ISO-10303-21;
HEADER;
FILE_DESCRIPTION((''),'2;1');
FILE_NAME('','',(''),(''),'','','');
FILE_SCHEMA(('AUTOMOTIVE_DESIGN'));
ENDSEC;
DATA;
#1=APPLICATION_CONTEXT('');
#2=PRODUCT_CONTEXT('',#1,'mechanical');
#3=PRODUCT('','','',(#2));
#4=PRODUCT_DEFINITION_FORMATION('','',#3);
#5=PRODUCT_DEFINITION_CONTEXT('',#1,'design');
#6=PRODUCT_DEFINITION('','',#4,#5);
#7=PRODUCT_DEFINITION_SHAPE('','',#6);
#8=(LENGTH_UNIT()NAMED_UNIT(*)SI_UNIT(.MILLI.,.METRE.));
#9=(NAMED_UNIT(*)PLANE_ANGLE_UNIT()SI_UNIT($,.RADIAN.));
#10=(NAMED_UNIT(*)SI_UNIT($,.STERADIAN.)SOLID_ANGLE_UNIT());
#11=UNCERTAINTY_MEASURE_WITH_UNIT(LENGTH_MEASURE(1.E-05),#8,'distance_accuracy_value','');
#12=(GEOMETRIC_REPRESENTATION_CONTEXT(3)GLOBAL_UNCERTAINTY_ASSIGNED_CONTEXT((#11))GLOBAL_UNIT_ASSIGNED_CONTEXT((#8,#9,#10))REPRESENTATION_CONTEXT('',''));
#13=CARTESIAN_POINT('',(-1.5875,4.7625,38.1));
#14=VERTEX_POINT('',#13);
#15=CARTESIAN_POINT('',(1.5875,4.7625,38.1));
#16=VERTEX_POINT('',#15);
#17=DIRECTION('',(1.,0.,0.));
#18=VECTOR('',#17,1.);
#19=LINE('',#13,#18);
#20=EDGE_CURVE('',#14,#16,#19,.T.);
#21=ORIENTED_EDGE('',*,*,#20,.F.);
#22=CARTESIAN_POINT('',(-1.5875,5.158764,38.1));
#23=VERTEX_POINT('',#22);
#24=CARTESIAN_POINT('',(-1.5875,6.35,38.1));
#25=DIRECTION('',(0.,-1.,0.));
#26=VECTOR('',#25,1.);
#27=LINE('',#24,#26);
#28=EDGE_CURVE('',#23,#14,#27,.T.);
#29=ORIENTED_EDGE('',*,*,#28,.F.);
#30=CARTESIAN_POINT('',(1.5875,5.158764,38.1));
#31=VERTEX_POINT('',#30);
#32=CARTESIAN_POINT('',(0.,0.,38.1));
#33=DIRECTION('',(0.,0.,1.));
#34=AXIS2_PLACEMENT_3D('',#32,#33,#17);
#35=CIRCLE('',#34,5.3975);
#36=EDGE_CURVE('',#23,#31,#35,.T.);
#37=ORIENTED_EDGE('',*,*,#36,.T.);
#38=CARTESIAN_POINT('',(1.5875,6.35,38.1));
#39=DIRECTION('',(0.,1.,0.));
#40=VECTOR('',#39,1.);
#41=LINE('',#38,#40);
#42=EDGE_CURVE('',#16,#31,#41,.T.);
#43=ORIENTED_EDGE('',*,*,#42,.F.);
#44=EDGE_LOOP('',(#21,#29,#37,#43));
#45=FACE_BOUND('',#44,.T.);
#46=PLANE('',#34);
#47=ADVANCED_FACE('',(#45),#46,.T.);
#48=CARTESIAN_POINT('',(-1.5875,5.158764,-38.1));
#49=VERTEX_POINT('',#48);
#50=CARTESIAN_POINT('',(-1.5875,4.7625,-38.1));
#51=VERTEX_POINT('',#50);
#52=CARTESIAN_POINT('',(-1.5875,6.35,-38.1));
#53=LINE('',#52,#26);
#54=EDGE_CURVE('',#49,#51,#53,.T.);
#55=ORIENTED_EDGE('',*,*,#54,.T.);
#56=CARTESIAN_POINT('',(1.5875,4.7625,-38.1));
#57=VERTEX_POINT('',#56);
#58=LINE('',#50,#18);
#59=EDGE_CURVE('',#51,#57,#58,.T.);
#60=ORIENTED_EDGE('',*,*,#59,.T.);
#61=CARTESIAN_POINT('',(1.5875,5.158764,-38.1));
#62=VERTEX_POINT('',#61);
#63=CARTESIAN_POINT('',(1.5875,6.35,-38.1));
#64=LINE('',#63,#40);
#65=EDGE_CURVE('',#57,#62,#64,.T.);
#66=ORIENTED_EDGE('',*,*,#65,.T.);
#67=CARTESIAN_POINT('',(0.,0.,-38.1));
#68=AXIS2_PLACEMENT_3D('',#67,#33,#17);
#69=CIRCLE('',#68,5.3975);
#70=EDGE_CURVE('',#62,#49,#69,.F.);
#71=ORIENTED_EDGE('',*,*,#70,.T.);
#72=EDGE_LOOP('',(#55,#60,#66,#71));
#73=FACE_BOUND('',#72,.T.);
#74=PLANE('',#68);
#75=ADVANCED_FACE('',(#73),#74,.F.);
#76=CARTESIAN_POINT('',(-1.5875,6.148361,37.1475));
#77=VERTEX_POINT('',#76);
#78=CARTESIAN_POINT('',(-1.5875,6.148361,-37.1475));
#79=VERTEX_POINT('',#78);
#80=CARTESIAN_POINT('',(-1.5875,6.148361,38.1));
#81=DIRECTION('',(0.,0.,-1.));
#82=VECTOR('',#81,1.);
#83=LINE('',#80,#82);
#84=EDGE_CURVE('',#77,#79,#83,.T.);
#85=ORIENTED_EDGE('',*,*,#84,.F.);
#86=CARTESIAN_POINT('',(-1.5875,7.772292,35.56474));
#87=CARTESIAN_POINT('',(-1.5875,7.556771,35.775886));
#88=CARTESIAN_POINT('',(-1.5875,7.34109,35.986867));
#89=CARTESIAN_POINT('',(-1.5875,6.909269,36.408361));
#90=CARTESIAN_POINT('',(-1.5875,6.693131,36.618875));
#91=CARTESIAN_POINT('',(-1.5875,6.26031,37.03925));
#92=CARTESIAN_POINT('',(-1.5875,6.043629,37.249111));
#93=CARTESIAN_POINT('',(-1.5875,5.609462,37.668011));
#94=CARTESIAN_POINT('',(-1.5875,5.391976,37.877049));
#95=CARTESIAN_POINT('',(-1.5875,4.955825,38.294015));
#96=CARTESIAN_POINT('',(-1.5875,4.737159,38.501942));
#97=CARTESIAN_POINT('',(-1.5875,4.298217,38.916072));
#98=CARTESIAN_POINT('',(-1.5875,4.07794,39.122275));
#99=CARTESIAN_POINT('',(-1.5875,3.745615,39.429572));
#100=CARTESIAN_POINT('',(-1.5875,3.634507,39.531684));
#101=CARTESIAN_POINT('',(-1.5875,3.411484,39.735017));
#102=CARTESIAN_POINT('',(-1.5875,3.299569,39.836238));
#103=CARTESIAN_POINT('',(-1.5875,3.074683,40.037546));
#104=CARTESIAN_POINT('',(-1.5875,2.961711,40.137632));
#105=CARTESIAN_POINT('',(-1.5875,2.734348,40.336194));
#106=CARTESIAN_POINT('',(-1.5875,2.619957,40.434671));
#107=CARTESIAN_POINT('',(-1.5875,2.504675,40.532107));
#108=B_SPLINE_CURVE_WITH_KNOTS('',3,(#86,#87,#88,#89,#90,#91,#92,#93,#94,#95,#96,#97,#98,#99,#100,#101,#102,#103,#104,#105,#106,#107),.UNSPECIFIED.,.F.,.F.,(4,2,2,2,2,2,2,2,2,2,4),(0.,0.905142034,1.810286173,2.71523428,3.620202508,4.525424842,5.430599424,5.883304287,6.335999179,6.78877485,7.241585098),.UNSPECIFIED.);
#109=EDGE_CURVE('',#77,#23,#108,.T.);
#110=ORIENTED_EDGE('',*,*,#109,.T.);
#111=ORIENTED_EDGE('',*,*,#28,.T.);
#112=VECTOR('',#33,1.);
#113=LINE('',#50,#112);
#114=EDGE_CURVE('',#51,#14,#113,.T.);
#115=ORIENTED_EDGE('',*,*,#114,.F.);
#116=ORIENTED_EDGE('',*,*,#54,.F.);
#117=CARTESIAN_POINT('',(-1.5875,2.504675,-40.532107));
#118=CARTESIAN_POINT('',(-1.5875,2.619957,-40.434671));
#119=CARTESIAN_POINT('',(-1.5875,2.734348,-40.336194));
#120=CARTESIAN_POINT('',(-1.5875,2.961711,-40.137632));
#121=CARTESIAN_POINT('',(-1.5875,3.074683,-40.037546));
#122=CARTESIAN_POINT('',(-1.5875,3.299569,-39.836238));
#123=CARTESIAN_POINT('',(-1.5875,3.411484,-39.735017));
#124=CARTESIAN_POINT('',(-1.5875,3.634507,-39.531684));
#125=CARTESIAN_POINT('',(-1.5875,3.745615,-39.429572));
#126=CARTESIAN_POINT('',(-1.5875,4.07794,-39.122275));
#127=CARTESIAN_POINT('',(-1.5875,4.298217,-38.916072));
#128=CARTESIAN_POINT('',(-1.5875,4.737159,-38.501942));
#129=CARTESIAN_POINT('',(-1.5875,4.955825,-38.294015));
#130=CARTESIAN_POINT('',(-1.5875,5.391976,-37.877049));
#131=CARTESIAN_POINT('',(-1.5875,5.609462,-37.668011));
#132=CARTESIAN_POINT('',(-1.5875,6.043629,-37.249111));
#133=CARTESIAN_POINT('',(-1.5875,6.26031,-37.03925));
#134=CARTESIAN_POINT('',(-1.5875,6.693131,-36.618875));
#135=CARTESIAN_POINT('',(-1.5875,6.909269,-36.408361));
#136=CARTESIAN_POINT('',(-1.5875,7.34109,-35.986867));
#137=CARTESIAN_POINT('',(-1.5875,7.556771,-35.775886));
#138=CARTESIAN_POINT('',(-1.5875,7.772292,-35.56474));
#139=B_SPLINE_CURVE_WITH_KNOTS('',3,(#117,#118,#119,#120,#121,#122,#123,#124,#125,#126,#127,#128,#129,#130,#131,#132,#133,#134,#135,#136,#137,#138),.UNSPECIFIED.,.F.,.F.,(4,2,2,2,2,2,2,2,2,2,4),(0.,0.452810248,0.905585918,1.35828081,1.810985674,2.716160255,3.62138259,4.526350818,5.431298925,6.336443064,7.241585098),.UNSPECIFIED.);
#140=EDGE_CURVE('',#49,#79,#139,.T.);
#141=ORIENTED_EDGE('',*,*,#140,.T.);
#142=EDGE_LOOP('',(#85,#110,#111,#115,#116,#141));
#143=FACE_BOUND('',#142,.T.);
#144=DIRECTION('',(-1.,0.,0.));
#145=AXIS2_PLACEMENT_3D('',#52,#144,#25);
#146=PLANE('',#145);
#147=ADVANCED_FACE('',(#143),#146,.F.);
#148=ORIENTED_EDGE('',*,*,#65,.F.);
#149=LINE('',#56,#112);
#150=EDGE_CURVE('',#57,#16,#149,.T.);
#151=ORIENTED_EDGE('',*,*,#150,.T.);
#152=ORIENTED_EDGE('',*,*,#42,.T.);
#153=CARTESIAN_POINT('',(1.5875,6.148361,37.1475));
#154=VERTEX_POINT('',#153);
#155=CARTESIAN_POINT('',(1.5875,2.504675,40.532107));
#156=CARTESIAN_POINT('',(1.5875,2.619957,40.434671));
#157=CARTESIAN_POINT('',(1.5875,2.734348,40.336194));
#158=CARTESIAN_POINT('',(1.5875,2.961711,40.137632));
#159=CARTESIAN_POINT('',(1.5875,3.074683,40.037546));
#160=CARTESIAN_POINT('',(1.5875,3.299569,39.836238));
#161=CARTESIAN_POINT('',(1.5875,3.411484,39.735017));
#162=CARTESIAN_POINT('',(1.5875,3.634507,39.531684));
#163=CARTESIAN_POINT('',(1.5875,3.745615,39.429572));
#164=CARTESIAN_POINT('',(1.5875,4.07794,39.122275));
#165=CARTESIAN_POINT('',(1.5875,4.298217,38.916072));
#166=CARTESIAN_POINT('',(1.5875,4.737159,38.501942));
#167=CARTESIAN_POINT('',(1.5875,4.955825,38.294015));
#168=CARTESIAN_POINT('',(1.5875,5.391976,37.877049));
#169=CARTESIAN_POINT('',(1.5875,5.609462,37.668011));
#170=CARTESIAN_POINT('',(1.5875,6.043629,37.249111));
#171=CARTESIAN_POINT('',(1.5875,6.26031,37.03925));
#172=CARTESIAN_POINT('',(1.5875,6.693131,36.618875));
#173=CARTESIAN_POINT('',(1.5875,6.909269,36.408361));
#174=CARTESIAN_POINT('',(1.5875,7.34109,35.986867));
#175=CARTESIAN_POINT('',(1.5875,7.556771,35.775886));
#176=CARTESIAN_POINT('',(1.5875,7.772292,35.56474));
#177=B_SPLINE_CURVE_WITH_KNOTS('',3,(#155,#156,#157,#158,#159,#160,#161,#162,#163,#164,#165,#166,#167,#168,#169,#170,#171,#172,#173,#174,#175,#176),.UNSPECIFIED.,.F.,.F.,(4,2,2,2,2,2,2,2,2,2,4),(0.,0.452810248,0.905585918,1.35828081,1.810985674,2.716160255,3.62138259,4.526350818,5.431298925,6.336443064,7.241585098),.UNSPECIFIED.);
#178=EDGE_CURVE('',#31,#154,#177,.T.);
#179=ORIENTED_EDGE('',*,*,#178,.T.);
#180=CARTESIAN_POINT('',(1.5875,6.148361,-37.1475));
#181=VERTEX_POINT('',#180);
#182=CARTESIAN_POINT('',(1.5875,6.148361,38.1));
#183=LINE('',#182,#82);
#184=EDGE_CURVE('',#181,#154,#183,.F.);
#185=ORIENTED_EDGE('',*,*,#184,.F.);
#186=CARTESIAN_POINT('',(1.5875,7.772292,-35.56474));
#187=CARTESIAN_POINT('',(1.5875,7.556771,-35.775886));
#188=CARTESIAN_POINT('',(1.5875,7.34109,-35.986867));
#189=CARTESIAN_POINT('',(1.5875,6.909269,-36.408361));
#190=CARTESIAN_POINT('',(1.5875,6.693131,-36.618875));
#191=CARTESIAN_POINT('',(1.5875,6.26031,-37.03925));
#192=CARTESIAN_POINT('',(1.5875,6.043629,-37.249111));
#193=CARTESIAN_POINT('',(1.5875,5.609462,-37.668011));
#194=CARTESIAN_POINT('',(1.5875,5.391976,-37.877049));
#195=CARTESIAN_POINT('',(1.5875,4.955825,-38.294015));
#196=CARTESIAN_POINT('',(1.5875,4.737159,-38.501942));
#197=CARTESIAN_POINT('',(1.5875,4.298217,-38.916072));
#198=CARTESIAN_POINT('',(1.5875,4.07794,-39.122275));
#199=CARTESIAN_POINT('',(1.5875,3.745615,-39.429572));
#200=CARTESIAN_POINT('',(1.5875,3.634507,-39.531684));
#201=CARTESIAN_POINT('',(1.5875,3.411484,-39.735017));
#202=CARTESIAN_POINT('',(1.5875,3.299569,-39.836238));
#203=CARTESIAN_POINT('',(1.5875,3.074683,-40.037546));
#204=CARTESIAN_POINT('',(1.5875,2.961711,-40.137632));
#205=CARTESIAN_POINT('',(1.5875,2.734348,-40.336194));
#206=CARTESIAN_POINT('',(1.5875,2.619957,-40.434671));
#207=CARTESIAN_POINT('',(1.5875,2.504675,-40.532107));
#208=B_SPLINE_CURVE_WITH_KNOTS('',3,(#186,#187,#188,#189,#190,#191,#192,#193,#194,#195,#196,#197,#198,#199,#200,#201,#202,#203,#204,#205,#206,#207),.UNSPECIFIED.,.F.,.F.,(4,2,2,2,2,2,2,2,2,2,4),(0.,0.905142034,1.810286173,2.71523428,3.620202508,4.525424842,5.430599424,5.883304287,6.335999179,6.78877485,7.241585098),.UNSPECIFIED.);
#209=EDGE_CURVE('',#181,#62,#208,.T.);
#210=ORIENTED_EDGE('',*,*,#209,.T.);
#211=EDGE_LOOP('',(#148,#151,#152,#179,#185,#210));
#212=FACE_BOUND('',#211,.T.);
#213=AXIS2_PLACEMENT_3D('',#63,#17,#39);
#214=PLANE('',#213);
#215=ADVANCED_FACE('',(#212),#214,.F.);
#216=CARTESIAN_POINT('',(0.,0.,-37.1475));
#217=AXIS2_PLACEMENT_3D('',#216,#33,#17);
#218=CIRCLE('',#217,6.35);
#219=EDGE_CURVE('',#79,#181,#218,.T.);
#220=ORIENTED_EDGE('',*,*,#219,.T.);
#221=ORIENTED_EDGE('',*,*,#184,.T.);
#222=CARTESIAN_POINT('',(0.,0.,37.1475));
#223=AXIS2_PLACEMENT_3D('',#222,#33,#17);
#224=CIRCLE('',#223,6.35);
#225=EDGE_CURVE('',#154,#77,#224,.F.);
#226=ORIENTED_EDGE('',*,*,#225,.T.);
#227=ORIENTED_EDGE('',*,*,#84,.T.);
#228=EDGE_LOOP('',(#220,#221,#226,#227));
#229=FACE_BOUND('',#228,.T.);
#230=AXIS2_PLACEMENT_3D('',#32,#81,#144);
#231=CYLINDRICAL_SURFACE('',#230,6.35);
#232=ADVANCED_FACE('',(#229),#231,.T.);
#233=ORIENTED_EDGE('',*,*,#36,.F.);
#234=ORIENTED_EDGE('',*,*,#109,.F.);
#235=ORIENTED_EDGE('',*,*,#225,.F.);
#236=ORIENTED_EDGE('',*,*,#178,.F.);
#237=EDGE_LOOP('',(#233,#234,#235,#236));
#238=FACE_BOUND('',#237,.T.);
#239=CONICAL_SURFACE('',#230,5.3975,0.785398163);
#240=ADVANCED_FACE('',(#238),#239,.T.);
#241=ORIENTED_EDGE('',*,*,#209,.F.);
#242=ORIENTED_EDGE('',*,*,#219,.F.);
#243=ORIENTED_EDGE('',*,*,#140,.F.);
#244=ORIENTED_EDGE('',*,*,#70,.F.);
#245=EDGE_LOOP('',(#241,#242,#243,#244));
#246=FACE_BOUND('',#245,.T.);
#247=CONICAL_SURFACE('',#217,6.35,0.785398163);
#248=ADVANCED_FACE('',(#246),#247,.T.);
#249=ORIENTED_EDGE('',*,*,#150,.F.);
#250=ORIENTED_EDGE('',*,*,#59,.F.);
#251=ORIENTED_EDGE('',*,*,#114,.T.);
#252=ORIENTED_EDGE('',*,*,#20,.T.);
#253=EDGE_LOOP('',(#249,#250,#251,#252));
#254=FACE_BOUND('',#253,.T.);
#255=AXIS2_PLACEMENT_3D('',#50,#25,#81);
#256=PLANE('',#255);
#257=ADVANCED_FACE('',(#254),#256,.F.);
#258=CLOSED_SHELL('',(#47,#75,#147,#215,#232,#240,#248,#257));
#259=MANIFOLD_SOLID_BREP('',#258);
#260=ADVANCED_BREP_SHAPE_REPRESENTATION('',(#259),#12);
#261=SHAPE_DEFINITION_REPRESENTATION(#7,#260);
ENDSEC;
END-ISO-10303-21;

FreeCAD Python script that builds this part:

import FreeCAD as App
import Part
import Sketcher

V = App.Vector
Q = App.Units.Quantity


def edges_at(feature, points):
    """Names of the edges that pass closest to the given points."""
    edges = feature.Shape.Edges
    near = lambda p: min(range(len(edges)), key=lambda i: edges[i].distToShape(Part.Vertex(*p))[0])
    return sorted({f"Edge{near(p) + 1}" for p in points})

doc = App.newDocument("Part")
body = doc.addObject("PartDesign::Body", "Body")

# Sketch on XY plane
sketch1 = doc.addObject("Sketcher::SketchObject", "Sketch")
body.addObject(sketch1)
sketch1.AttachmentSupport = (doc.XY_Plane, [""])
sketch1.MapMode = "FlatFace"
sketch1.addGeometry(Part.Circle(V(0, 0, 0), V(0, 0, 1), 6.35), False)
sketch1.addConstraint([
    Sketcher.Constraint("Coincident", 0, 3, -1, 1),
    Sketcher.Constraint("Diameter", 0, Q("0.5 in")),
])
pad1 = doc.addObject("PartDesign::Pad", "Pad")
body.addObject(pad1)
pad1.Profile = sketch1
pad1.Length = Q("3 in")
pad1.Midplane = True
doc.recompute()

chamfer = doc.addObject("PartDesign::Chamfer", "Chamfer")
body.addObject(chamfer)
chamfer.Base = (pad1, edges_at(pad1, [(-6.35, 0, -38.1), (-6.35, 0, 38.1)]))
chamfer.Size = Q("0.0375 in")

# Sketch on XY plane
sketch2 = doc.addObject("Sketcher::SketchObject", "Sketch001")
body.addObject(sketch2)
sketch2.AttachmentSupport = (doc.XY_Plane, [""])
sketch2.MapMode = "FlatFace"
sketch2.addGeometry([
    Part.LineSegment(V(-1.5875, 6.35, 0), V(-1.5875, 4.7625, 0)),
    Part.LineSegment(V(-1.5875, 4.7625, 0), V(1.5875, 4.7625, 0)),
    Part.LineSegment(V(1.5875, 4.7625, 0), V(1.5875, 6.35, 0)),
    Part.LineSegment(V(1.5875, 6.35, 0), V(-1.5875, 6.35, 0)),
], False)
sketch2.addConstraint([
    Sketcher.Constraint("Coincident", 0, 2, 1, 1),
    Sketcher.Constraint("Coincident", 1, 2, 2, 1),
    Sketcher.Constraint("Coincident", 2, 2, 3, 1),
    Sketcher.Constraint("Coincident", 3, 2, 0, 1),
    Sketcher.Constraint("Vertical", 0),
    Sketcher.Constraint("Horizontal", 1),
    Sketcher.Constraint("Vertical", 2),
    Sketcher.Constraint("Horizontal", 3),
    Sketcher.Constraint("DistanceX", 1, 1, 1, 2, Q("0.125 in")),
    Sketcher.Constraint("DistanceY", 0, 2, 0, 1, Q("0.0625 in")),
    Sketcher.Constraint("DistanceY", -1, 1, 2, 2, Q("0.25 in")),
    Sketcher.Constraint("DistanceX", 0, 2, -1, 1, Q("0.0625 in")),
])
pocket1 = doc.addObject("PartDesign::Pocket", "Pocket")
body.addObject(pocket1)
pocket1.Profile = sketch2
pocket1.Type = "ThroughAll"
pocket1.Midplane = True

doc.recompute()
